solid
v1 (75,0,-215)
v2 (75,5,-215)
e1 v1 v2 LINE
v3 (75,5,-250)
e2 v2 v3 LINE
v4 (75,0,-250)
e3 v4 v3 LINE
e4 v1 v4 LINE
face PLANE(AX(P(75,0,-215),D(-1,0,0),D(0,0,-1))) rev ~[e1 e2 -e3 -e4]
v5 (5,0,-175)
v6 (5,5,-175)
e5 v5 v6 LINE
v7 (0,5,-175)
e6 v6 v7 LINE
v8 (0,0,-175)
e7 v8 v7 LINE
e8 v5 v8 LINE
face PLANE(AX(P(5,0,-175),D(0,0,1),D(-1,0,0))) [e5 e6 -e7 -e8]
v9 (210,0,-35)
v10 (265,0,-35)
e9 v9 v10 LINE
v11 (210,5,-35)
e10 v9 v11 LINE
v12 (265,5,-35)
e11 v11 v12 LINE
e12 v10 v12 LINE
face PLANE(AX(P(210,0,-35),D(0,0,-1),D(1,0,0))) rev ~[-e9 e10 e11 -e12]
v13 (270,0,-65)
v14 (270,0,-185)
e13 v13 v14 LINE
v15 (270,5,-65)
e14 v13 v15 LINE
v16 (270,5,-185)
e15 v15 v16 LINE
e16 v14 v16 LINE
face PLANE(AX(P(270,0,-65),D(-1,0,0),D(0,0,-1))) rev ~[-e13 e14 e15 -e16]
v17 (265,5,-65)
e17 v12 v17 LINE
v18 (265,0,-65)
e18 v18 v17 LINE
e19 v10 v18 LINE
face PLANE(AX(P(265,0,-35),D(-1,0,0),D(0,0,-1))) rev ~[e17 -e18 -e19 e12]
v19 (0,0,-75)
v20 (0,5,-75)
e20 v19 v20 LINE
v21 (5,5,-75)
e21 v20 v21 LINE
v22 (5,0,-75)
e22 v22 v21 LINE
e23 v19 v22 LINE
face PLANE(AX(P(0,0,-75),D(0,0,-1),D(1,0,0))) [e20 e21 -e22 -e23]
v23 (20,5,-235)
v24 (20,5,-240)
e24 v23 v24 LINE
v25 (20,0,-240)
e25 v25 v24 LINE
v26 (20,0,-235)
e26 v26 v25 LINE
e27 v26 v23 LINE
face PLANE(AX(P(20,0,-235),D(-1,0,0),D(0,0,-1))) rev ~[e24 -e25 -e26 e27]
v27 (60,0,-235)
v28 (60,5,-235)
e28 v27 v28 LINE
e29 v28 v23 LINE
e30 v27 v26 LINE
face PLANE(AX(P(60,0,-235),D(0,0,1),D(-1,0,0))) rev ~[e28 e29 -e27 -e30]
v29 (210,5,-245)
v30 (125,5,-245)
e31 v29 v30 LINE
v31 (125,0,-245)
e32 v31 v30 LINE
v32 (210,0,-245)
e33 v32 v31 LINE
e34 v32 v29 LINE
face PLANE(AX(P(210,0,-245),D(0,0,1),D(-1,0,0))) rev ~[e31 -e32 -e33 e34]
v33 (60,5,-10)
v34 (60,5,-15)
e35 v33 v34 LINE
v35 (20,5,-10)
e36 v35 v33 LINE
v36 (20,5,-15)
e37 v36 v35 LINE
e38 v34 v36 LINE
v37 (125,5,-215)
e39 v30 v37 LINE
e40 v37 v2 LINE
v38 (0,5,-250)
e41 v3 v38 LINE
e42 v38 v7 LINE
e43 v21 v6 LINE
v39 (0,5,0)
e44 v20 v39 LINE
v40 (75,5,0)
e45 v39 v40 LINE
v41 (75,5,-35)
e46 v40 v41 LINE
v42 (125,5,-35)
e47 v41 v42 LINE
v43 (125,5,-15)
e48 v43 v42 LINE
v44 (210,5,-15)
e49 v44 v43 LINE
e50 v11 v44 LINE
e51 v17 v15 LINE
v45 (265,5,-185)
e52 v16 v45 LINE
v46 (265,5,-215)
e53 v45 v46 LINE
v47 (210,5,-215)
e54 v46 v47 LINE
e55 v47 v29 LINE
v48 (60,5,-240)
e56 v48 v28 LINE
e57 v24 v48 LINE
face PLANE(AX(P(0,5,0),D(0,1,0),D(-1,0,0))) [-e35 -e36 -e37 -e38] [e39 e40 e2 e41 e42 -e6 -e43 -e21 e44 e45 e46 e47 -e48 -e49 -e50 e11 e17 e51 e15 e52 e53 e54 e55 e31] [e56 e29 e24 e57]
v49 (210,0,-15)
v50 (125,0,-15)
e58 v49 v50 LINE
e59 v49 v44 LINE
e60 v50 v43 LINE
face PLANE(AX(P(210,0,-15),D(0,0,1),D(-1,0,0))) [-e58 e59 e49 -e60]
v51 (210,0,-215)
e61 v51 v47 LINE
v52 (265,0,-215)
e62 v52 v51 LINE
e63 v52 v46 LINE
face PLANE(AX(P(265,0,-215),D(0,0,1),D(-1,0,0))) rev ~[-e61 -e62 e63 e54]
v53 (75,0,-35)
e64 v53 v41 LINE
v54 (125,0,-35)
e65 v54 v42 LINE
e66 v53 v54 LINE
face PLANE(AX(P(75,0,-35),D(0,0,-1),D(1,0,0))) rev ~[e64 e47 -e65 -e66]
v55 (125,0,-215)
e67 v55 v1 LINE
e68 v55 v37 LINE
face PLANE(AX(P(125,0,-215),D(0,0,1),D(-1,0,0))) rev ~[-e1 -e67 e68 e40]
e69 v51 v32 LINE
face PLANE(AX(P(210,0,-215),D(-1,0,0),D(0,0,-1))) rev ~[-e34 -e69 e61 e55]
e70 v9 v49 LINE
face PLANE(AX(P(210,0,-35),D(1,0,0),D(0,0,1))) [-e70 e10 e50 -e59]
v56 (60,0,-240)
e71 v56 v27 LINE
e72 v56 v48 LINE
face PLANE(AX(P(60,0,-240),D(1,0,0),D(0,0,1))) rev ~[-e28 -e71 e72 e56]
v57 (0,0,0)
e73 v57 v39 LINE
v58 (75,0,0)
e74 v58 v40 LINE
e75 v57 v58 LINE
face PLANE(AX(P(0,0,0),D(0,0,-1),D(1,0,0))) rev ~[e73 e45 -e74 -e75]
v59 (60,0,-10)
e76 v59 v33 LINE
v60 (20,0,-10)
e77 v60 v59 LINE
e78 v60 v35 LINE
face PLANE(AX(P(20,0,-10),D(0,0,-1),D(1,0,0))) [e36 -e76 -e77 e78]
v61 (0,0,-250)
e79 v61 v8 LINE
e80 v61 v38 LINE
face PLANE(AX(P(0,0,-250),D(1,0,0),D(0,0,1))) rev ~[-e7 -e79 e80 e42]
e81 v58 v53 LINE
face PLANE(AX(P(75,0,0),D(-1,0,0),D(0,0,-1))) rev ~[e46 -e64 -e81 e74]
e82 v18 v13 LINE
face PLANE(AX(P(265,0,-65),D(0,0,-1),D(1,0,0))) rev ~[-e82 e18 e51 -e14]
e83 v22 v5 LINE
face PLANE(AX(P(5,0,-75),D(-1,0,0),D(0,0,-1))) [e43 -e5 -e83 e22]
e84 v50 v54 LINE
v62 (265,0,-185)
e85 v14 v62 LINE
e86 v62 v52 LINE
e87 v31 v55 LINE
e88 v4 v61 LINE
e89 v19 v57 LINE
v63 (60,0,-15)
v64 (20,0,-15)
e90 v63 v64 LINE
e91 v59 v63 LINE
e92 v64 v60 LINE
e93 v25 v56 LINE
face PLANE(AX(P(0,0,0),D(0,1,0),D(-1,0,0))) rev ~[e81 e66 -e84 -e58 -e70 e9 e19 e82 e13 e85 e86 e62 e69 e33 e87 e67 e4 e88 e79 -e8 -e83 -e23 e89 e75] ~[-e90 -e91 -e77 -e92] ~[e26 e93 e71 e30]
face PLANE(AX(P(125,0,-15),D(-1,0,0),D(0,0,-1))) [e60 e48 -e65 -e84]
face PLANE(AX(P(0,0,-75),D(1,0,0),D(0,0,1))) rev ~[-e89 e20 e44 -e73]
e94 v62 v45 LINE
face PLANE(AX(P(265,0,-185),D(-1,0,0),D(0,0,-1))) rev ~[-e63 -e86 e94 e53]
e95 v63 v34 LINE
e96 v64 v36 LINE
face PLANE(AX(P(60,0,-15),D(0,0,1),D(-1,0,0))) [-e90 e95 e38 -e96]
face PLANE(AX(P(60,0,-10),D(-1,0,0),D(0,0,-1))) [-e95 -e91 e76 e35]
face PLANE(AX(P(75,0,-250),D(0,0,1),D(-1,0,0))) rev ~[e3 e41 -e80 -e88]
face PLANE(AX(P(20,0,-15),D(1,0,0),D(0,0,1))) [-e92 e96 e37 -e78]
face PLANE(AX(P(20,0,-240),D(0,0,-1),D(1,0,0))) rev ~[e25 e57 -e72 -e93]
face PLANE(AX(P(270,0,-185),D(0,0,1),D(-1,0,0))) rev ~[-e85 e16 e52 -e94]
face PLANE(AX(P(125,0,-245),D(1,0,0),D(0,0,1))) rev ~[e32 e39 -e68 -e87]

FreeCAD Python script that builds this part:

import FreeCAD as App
import Part
import Sketcher

V = App.Vector

doc = App.newDocument("Part")
body = doc.addObject("PartDesign::Body", "Body")

sketch1 = body.newObject("Sketcher::SketchObject", "Sketch")
sketch1.AttachmentSupport = (doc.getObject("XZ_Plane"), [""])
sketch1.MapMode = "FlatFace"
sketch1.addGeometry([
    Part.LineSegment(V(0, -75, 0), V(0, 0, 0)),
    Part.LineSegment(V(0, 0, 0), V(75, 0, 0)),
    Part.LineSegment(V(75, 0, 0), V(75, -35, 0)),
    Part.LineSegment(V(75, -35, 0), V(125, -35, 0)),
    Part.LineSegment(V(125, -35, 0), V(125, -15, 0)),
    Part.LineSegment(V(125, -15, 0), V(210, -15, 0)),
    Part.LineSegment(V(210, -15, 0), V(210, -35, 0)),
    Part.LineSegment(V(210, -35, 0), V(265, -35, 0)),
    Part.LineSegment(V(265, -35, 0), V(265, -65, 0)),
    Part.LineSegment(V(265, -65, 0), V(270, -65, 0)),
    Part.LineSegment(V(270, -65, 0), V(270, -185, 0)),
    Part.LineSegment(V(270, -185, 0), V(265, -185, 0)),
    Part.LineSegment(V(265, -185, 0), V(265, -215, 0)),
    Part.LineSegment(V(265, -215, 0), V(210, -215, 0)),
    Part.LineSegment(V(210, -215, 0), V(210, -245, 0)),
    Part.LineSegment(V(210, -245, 0), V(125, -245, 0)),
    Part.LineSegment(V(125, -245, 0), V(125, -215, 0)),
    Part.LineSegment(V(125, -215, 0), V(75, -215, 0)),
    Part.LineSegment(V(75, -215, 0), V(75, -250, 0)),
    Part.LineSegment(V(75, -250, 0), V(0, -250, 0)),
    Part.LineSegment(V(0, -250, 0), V(0, -175, 0)),
    Part.LineSegment(V(0, -175, 0), V(5, -175, 0)),
    Part.LineSegment(V(5, -175, 0), V(5, -75, 0)),
    Part.LineSegment(V(5, -75, 0), V(0, -75, 0)),
    Part.LineSegment(V(20, -235, 0), V(20, -240, 0)),
    Part.LineSegment(V(20, -240, 0), V(60, -240, 0)),
    Part.LineSegment(V(60, -240, 0), V(60, -235, 0)),
    Part.LineSegment(V(60, -235, 0), V(20, -235, 0)),
    Part.LineSegment(V(60, -10, 0), V(20, -10, 0)),
    Part.LineSegment(V(20, -10, 0), V(20, -15, 0)),
    Part.LineSegment(V(20, -15, 0), V(60, -15, 0)),
    Part.LineSegment(V(60, -15, 0), V(60, -10, 0)),
], False)
sketch1.addConstraint([
    Sketcher.Constraint("Coincident", 0, 2, 1, 1),
    Sketcher.Constraint("Coincident", 1, 2, 2, 1),
    Sketcher.Constraint("Coincident", 2, 2, 3, 1),
    Sketcher.Constraint("Coincident", 3, 2, 4, 1),
    Sketcher.Constraint("Coincident", 4, 2, 5, 1),
    Sketcher.Constraint("Coincident", 5, 2, 6, 1),
    Sketcher.Constraint("Coincident", 6, 2, 7, 1),
    Sketcher.Constraint("Coincident", 7, 2, 8, 1),
    Sketcher.Constraint("Coincident", 8, 2, 9, 1),
    Sketcher.Constraint("Coincident", 9, 2, 10, 1),
    Sketcher.Constraint("Coincident", 10, 2, 11, 1),
    Sketcher.Constraint("Coincident", 11, 2, 12, 1),
    Sketcher.Constraint("Coincident", 12, 2, 13, 1),
    Sketcher.Constraint("Coincident", 13, 2, 14, 1),
    Sketcher.Constraint("Coincident", 14, 2, 15, 1),
    Sketcher.Constraint("Coincident", 15, 2, 16, 1),
    Sketcher.Constraint("Coincident", 16, 2, 17, 1),
    Sketcher.Constraint("Coincident", 17, 2, 18, 1),
    Sketcher.Constraint("Coincident", 18, 2, 19, 1),
    Sketcher.Constraint("Coincident", 19, 2, 20, 1),
    Sketcher.Constraint("Coincident", 20, 2, 21, 1),
    Sketcher.Constraint("Coincident", 21, 2, 22, 1),
    Sketcher.Constraint("Coincident", 22, 2, 23, 1),
    Sketcher.Constraint("Coincident", 23, 2, 0, 1),
    Sketcher.Constraint("Coincident", 24, 2, 25, 1),
    Sketcher.Constraint("Coincident", 25, 2, 26, 1),
    Sketcher.Constraint("Coincident", 26, 2, 27, 1),
    Sketcher.Constraint("Coincident", 27, 2, 24, 1),
    Sketcher.Constraint("Coincident", 28, 2, 29, 1),
    Sketcher.Constraint("Coincident", 29, 2, 30, 1),
    Sketcher.Constraint("Coincident", 30, 2, 31, 1),
    Sketcher.Constraint("Coincident", 31, 2, 28, 1),
    Sketcher.Constraint("Vertical", 0),
    Sketcher.Constraint("Horizontal", 1),
    Sketcher.Constraint("Vertical", 2),
    Sketcher.Constraint("Horizontal", 3),
    Sketcher.Constraint("Vertical", 4),
    Sketcher.Constraint("Horizontal", 5),
    Sketcher.Constraint("Vertical", 6),
    Sketcher.Constraint("Horizontal", 7),
    Sketcher.Constraint("Vertical", 8),
    Sketcher.Constraint("Horizontal", 9),
    Sketcher.Constraint("Vertical", 10),
    Sketcher.Constraint("Horizontal", 11),
    Sketcher.Constraint("Vertical", 12),
    Sketcher.Constraint("Horizontal", 13),
    Sketcher.Constraint("Vertical", 14),
    Sketcher.Constraint("Horizontal", 15),
    Sketcher.Constraint("Vertical", 16),
    Sketcher.Constraint("Horizontal", 17),
    Sketcher.Constraint("Vertical", 18),
    Sketcher.Constraint("Horizontal", 19),
    Sketcher.Constraint("Vertical", 20),
    Sketcher.Constraint("Horizontal", 21),
    Sketcher.Constraint("Vertical", 22),
    Sketcher.Constraint("Horizontal", 23),
    Sketcher.Constraint("Vertical", 24),
    Sketcher.Constraint("Horizontal", 25),
    Sketcher.Constraint("Vertical", 26),
    Sketcher.Constraint("Horizontal", 27),
    Sketcher.Constraint("Horizontal", 28),
    Sketcher.Constraint("Vertical", 29),
    Sketcher.Constraint("Horizontal", 30),
    Sketcher.Constraint("Vertical", 31),
    Sketcher.Constraint("Coincident", 0, 2, -1, 1),
    Sketcher.Constraint("PointOnObject", 19, 2, -2),
    Sketcher.Constraint("Horizontal", 3, 2, 6, 2),
    Sketcher.Constraint("Horizontal", 13, 2, 16, 2),
    Sketcher.Constraint("Horizontal", 5, 2, 29, 2),
    Sketcher.Constraint("Vertical", 8, 2, 11, 2),
    Sketcher.Constraint("Vertical", 6, 2, 13, 2),
    Sketcher.Constraint("Vertical", 4, 2, 15, 2),
    Sketcher.Constraint("Vertical", 2, 2, 17, 2),
    Sketcher.Constraint("Vertical", 27, 2, 28, 2),
    Sketcher.Constraint("Vertical", 26, 2, 30, 2),
    Sketcher.Constraint("Equal", 11, 21),
    Sketcher.Constraint("Equal", 19, 0),
    Sketcher.Constraint("Equal", 8, 12),
    Sketcher.Constraint("Equal", 12, 14),
    Sketcher.Constraint("Equal", 2, 18),
    Sketcher.Constraint("Equal", 0, 20),
    Sketcher.Constraint("Equal", 23, 24),
    Sketcher.Constraint("Equal", 26, 29),
    Sketcher.Constraint("DistanceX", 1, 1, 1, 2, 75.0),
    Sketcher.Constraint("DistanceX", 3, 1, 3, 2, 50.0),
    Sketcher.Constraint("DistanceX", 5, 1, 5, 2, 85.0),
    Sketcher.Constraint("DistanceX", 9, 1, 9, 2, 5.0),
    Sketcher.Constraint("DistanceX", 25, 1, 25, 2, 40.0),
    Sketcher.Constraint("DistanceY", 2, 2, 2, 1, 35.0),
    Sketcher.Constraint("DistanceY", 4, 1, 4, 2, 20.0),
    Sketcher.Constraint("DistanceY", 8, 2, 8, 1, 30.0),
    Sketcher.Constraint("DistanceY", 10, 2, 10, 1, 120.0),
    Sketcher.Constraint("DistanceX", -1, 1, 24, 2, 20.0),
    Sketcher.Constraint("DistanceX", 2, 2, 7, 2, 190.0),
    Sketcher.Constraint("DistanceY", 19, 2, 24, 2, 10.0),
])
pad1 = body.newObject("PartDesign::Pad", "Pad")
pad1.Profile = sketch1
pad1.Length = 5
pad1.Reversed = True

doc.recompute()
